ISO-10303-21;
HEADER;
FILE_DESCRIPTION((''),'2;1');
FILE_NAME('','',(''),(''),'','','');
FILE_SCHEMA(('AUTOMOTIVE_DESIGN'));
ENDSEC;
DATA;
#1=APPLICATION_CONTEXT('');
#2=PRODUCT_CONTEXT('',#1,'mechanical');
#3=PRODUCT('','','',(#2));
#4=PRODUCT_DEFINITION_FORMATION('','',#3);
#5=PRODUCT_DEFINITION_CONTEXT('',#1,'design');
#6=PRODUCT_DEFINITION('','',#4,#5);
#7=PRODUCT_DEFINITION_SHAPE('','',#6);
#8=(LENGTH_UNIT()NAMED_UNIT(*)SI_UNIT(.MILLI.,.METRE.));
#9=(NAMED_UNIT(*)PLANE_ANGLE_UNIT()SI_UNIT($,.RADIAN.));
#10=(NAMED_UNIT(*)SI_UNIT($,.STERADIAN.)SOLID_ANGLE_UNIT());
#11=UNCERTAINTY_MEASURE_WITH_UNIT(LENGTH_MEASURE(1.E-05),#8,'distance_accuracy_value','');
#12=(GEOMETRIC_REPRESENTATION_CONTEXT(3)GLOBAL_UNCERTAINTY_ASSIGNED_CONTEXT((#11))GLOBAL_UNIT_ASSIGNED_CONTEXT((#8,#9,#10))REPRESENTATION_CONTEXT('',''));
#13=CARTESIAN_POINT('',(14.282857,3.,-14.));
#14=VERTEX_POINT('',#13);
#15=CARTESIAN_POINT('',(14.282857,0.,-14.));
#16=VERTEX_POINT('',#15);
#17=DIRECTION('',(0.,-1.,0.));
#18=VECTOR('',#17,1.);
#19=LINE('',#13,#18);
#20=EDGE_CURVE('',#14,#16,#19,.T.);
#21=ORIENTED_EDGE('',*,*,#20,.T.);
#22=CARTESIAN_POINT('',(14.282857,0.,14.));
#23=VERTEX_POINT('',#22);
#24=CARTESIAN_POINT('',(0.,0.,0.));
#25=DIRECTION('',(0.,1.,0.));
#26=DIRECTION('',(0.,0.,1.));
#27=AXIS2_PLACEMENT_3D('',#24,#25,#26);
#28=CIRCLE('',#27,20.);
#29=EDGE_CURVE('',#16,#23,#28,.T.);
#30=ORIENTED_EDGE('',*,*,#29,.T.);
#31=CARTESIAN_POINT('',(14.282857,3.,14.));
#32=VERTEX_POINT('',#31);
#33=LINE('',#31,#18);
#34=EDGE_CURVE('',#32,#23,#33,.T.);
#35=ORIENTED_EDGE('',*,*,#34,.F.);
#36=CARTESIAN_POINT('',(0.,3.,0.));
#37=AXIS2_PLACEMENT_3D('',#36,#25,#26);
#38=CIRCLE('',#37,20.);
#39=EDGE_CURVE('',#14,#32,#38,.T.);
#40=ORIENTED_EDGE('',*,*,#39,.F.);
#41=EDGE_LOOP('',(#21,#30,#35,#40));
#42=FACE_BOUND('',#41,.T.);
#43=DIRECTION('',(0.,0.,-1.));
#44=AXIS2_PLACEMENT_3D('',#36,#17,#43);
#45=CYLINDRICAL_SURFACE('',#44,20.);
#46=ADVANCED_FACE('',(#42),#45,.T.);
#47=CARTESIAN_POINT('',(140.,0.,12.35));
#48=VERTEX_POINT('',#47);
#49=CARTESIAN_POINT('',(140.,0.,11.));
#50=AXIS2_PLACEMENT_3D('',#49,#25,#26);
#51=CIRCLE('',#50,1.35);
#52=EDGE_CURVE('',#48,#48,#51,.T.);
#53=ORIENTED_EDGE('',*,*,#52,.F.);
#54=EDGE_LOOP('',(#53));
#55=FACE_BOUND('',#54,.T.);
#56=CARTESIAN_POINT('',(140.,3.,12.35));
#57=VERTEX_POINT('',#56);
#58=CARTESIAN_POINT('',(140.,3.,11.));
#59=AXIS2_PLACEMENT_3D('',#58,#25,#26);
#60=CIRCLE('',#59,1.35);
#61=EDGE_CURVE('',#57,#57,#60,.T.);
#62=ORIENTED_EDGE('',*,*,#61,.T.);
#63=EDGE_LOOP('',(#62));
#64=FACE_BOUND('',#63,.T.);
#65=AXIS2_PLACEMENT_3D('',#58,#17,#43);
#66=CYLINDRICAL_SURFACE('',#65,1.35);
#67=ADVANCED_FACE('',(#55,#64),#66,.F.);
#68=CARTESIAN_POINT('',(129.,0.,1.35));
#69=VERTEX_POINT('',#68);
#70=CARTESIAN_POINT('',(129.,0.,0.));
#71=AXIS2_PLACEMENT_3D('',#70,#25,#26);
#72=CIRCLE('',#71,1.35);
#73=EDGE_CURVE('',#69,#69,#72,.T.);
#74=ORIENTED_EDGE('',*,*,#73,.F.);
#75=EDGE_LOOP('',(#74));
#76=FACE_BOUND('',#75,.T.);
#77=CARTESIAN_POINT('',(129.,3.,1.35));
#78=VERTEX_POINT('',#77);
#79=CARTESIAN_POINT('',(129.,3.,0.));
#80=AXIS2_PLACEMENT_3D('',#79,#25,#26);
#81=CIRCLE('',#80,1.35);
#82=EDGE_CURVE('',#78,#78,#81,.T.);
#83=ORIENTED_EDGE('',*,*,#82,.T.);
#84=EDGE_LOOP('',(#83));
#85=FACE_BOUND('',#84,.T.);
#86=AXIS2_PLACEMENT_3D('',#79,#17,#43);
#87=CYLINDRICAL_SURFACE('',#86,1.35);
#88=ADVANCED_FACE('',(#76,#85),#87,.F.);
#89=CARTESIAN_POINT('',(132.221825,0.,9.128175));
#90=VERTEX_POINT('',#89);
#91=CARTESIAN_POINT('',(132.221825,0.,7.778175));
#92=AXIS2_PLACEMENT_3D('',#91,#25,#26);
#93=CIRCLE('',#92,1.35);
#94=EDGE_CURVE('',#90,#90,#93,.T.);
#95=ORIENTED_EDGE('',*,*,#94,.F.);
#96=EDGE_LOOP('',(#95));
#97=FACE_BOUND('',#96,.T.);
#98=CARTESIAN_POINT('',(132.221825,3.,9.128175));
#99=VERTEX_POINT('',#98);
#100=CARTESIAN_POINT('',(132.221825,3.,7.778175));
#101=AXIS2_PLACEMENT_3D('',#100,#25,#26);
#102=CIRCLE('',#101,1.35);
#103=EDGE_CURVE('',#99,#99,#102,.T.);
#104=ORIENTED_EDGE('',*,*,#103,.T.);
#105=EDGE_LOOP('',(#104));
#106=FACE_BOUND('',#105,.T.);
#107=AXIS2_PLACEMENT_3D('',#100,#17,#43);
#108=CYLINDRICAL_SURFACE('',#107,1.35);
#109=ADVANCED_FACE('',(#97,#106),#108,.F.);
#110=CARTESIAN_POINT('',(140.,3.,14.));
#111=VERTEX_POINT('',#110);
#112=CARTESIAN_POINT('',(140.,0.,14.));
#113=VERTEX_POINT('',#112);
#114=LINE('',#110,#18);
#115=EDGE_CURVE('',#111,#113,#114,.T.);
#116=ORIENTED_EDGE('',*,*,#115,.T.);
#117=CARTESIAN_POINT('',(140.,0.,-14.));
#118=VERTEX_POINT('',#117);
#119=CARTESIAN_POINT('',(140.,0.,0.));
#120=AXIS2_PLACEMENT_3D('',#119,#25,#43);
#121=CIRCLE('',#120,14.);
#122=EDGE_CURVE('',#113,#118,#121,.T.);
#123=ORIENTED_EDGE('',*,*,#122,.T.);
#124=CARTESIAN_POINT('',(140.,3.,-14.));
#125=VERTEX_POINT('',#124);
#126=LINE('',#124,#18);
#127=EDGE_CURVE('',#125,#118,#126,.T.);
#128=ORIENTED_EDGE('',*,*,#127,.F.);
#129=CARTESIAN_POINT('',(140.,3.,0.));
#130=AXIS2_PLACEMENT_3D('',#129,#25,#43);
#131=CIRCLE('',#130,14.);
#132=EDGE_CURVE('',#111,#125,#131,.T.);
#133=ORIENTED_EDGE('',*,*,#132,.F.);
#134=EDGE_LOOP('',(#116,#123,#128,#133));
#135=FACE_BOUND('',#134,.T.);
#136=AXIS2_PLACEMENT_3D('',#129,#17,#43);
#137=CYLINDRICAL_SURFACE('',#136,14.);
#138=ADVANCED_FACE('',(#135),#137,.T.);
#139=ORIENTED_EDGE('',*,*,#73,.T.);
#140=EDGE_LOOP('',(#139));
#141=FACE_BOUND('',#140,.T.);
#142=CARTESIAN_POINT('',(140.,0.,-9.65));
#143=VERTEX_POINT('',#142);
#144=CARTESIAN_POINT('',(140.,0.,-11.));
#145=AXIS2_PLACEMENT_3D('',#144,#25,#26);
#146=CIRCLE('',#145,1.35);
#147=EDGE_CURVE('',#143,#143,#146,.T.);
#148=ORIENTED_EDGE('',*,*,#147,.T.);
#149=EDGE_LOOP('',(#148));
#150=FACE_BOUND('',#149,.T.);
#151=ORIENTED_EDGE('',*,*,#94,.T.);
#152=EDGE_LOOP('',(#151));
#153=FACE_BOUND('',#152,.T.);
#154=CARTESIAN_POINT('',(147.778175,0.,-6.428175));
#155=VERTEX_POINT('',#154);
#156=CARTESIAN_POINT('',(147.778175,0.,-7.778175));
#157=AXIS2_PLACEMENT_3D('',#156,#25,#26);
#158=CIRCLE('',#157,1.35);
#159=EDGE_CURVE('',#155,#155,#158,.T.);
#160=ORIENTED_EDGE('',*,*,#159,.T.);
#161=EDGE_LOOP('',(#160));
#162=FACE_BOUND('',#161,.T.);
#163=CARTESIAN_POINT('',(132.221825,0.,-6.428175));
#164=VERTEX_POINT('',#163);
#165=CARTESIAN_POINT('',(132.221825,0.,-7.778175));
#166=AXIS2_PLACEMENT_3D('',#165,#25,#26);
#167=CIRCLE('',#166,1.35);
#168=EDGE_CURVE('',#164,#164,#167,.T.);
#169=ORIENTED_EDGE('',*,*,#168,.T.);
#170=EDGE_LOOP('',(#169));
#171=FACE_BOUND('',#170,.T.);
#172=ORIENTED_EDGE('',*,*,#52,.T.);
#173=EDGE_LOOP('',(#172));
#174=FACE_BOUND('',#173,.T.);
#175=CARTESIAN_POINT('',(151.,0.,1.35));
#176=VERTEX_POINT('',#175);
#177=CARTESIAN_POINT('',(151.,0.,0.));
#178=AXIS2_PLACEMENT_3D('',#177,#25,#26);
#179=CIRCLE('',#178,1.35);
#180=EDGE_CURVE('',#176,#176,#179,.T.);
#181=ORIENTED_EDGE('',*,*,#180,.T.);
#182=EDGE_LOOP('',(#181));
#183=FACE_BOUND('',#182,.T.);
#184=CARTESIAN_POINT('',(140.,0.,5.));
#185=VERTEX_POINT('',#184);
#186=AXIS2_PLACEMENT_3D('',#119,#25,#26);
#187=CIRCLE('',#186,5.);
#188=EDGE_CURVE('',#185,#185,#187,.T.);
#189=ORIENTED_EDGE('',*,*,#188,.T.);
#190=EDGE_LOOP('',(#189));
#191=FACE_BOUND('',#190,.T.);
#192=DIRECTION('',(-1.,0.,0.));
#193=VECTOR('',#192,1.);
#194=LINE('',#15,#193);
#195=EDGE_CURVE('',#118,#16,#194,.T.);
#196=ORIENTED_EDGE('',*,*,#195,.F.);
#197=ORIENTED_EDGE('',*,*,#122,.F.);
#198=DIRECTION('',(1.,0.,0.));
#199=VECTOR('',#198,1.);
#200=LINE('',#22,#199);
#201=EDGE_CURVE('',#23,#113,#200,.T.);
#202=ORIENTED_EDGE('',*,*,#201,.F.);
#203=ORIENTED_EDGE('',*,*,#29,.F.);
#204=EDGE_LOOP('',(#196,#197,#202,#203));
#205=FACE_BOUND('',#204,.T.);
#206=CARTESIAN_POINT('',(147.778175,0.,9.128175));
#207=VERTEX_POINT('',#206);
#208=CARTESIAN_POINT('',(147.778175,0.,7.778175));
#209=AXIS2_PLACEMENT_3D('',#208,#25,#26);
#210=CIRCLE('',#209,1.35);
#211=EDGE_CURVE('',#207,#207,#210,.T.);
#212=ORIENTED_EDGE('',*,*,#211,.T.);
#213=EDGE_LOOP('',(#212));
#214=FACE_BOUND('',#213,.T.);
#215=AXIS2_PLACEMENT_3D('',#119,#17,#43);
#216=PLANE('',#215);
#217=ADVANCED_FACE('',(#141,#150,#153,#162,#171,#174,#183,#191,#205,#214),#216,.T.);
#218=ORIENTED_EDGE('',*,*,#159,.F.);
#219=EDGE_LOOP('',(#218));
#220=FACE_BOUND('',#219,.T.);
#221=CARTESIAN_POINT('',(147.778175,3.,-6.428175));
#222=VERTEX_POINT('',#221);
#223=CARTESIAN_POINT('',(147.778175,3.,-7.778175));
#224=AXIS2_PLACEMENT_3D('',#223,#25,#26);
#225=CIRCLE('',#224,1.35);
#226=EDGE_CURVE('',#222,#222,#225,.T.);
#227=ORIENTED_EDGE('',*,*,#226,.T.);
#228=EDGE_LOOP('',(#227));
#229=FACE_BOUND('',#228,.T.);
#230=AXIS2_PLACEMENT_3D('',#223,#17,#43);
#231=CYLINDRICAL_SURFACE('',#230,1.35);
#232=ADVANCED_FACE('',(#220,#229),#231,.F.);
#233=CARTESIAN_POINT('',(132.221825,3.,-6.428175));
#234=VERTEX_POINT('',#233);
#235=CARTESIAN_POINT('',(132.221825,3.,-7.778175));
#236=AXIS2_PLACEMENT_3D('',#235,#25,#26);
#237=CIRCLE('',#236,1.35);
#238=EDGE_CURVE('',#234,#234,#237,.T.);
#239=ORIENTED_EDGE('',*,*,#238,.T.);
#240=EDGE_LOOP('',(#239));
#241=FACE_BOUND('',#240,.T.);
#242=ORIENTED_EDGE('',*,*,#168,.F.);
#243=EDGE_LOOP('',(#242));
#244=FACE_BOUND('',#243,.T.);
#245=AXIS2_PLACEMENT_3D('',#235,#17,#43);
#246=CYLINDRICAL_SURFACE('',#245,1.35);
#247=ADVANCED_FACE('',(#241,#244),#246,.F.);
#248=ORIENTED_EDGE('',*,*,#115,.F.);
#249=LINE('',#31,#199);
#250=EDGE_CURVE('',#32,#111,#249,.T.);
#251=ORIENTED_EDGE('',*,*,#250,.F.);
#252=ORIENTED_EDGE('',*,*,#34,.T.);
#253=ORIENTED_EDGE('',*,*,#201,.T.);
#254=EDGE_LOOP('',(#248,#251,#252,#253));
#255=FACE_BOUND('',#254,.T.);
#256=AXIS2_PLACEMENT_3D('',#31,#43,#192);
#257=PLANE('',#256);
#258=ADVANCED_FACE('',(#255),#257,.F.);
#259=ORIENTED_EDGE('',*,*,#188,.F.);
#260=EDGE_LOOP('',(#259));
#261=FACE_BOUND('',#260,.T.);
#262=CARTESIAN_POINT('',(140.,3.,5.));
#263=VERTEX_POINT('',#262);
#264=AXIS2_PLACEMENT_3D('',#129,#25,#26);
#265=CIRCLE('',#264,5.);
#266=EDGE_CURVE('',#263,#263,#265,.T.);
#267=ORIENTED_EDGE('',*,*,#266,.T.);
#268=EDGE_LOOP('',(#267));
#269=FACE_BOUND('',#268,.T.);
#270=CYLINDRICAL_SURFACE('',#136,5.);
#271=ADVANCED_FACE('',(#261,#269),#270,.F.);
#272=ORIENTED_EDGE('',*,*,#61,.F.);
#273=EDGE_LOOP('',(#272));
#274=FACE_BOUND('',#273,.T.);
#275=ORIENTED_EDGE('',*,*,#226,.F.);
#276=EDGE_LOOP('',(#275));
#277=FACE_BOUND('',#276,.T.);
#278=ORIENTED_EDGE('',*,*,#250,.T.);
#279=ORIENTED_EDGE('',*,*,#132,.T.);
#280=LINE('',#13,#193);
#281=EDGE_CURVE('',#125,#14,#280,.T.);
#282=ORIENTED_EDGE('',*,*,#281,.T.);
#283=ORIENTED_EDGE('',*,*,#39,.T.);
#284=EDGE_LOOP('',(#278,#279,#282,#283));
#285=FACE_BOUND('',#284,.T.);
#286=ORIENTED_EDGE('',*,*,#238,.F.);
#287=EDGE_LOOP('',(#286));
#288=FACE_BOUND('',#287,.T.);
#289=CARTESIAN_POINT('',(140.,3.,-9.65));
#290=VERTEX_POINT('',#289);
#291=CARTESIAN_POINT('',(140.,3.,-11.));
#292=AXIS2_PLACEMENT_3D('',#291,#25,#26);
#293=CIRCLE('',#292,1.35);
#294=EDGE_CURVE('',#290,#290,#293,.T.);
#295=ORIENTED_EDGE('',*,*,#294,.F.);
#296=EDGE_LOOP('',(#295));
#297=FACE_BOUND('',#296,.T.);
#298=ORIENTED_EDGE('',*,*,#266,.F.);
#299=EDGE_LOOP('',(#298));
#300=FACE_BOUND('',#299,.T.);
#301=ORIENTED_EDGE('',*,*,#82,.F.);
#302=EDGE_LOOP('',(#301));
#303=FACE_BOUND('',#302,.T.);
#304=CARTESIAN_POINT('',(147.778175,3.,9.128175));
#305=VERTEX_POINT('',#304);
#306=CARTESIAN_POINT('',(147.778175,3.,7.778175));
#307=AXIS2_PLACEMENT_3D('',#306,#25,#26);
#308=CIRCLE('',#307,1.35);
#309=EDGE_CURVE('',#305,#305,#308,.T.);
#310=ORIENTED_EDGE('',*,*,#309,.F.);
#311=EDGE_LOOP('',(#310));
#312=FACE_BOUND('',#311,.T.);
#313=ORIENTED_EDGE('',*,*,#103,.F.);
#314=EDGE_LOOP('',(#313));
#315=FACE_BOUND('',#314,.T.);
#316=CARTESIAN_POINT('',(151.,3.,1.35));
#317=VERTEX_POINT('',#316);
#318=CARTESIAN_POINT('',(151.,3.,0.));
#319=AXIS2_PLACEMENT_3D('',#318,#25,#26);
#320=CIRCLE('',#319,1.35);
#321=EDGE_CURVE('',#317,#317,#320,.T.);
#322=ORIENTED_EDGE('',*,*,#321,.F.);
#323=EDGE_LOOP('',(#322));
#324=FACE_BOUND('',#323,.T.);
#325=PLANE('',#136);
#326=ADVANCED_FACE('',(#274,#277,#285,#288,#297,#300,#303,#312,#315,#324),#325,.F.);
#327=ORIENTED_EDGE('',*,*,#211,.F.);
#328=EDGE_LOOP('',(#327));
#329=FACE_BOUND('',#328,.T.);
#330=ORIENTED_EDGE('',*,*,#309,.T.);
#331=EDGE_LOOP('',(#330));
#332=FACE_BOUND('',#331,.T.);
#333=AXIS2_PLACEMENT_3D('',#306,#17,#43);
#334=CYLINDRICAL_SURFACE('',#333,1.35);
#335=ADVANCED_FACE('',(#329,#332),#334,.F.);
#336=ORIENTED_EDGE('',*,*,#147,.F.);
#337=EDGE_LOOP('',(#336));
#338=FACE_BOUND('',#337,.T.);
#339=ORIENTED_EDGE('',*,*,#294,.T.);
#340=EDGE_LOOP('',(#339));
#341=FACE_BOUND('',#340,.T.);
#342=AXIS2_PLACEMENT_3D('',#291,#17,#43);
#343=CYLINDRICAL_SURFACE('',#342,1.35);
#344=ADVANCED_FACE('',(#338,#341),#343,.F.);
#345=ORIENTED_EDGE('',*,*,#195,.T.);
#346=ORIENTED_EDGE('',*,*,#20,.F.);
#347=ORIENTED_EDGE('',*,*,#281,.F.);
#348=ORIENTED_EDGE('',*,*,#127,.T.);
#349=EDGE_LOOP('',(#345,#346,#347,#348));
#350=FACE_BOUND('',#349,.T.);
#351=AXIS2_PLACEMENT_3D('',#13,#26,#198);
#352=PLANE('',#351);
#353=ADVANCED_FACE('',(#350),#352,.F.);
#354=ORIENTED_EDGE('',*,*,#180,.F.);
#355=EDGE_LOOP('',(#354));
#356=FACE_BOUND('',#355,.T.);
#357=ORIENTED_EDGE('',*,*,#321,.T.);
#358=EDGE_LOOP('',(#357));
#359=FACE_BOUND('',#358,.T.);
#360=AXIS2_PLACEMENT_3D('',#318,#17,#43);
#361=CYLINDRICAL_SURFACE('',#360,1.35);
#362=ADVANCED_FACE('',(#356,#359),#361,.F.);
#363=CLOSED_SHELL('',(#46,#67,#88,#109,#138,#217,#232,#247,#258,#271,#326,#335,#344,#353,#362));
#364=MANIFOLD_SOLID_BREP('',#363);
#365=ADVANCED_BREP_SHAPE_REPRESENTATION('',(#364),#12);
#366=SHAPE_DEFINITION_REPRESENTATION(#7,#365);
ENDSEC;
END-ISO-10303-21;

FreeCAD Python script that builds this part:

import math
import FreeCAD as App
import Part
import Sketcher
Q = App.Units.Quantity

doc = App.newDocument("Part")
body = doc.addObject("PartDesign::Body", "Body")

# Sketch on XZ plane
sketch1 = doc.addObject("Sketcher::SketchObject", "Sketch")
body.addObject(sketch1)
sketch1.AttachmentSupport = (doc.XZ_Plane, [""])
sketch1.MapMode = "FlatFace"
sketch1.addGeometry([
    Part.LineSegment(App.Vector(14.3, 14, 0), App.Vector(140, 14, 0)),  # 0
    Part.ArcOfCircle(Part.Circle(App.Vector(140, 0, 0), App.Vector(0, 0, 1), 14), math.radians(-90), math.radians(90)),  # 1
    Part.LineSegment(App.Vector(140, -14, 0), App.Vector(14.3, -14, 0)),  # 2
    Part.ArcOfCircle(Part.Circle(App.Vector(0, 0, 0), App.Vector(0, 0, 1), 20), math.radians(44), math.radians(316)),  # 3
    Part.Circle(App.Vector(132.2, 7.8, 0), App.Vector(0, 0, 1), 1.4),  # 4
    Part.Circle(App.Vector(140, 11, 0), App.Vector(0, 0, 1), 1.4),  # 5
    Part.Circle(App.Vector(147.8, 7.8, 0), App.Vector(0, 0, 1), 1.4),  # 6
    Part.Circle(App.Vector(129, 0, 0), App.Vector(0, 0, 1), 1.4),  # 7
    Part.Circle(App.Vector(132.2, -7.8, 0), App.Vector(0, 0, 1), 1.4),  # 8
    Part.Circle(App.Vector(140, 0, 0), App.Vector(0, 0, 1), 5),  # 9
    Part.Circle(App.Vector(151, 0, 0), App.Vector(0, 0, 1), 1.4),  # 10
    Part.Circle(App.Vector(140, -11, 0), App.Vector(0, 0, 1), 1.4),  # 11
    Part.Circle(App.Vector(147.8, -7.8, 0), App.Vector(0, 0, 1), 1.4),  # 12
], False)
sketch1.addConstraint([
    Sketcher.Constraint("Tangent", 0, 2, 1, 2),
    Sketcher.Constraint("Tangent", 1, 1, 2, 1),
    Sketcher.Constraint("Coincident", 2, 2, 3, 2),
    Sketcher.Constraint("Coincident", 3, 1, 0, 1),
    Sketcher.Constraint("Horizontal", 0),
    Sketcher.Constraint("Horizontal", 2),
    Sketcher.Constraint("Coincident", 3, 3, -1, 1),
    Sketcher.Constraint("Coincident", 9, 3, 1, 3),
    Sketcher.Constraint("Equal", 4, 5),
    Sketcher.Constraint("Equal", 5, 6),
    Sketcher.Constraint("Equal", 6, 7),
    Sketcher.Constraint("Equal", 7, 8),
    Sketcher.Constraint("Equal", 8, 10),
    Sketcher.Constraint("Equal", 10, 11),
    Sketcher.Constraint("Equal", 11, 12),
    Sketcher.Constraint("Symmetric", 4, 3, 8, 3, -1),
    Sketcher.Constraint("Symmetric", 5, 3, 11, 3, -1),
    Sketcher.Constraint("Symmetric", 6, 3, 12, 3, -1),
    Sketcher.Constraint("PointOnObject", 1, 3, -1),
    Sketcher.Constraint("PointOnObject", 7, 3, -1),
    Sketcher.Constraint("PointOnObject", 10, 3, -1),
    Sketcher.Constraint("Horizontal", 4, 3, 6, 3),
    Sketcher.Constraint("Vertical", 1, 3, 5, 3),
    Sketcher.Constraint("Diameter", 9, Q("10 mm")),
    Sketcher.Constraint("Radius", 1, Q("14 mm")),
    Sketcher.Constraint("Radius", 3, Q("20 mm")),
    Sketcher.Constraint("Diameter", 4, Q("2.7 mm")),
    Sketcher.Constraint("DistanceX", -1, 1, 1, 3, Q("140 mm")),
    Sketcher.Constraint("DistanceY", -1, 1, 5, 3, Q("11 mm")),
    Sketcher.Constraint("DistanceX", -1, 1, 7, 3, Q("129 mm")),
    Sketcher.Constraint("DistanceX", -1, 1, 10, 3, Q("151 mm")),
    Sketcher.Constraint("DistanceX", 4, 3, 6, 3, Q("15.556349 mm")),
    Sketcher.Constraint("DistanceY", 8, 3, 4, 3, Q("15.556349 mm")),
    Sketcher.Constraint("DistanceX", 2, 2, 8, 3, Q("117.938969 mm")),
])
pad1 = doc.addObject("PartDesign::Pad", "Pad")
body.addObject(pad1)
pad1.Profile = sketch1
pad1.Length = 3
pad1.Reversed = True

doc.recompute()
